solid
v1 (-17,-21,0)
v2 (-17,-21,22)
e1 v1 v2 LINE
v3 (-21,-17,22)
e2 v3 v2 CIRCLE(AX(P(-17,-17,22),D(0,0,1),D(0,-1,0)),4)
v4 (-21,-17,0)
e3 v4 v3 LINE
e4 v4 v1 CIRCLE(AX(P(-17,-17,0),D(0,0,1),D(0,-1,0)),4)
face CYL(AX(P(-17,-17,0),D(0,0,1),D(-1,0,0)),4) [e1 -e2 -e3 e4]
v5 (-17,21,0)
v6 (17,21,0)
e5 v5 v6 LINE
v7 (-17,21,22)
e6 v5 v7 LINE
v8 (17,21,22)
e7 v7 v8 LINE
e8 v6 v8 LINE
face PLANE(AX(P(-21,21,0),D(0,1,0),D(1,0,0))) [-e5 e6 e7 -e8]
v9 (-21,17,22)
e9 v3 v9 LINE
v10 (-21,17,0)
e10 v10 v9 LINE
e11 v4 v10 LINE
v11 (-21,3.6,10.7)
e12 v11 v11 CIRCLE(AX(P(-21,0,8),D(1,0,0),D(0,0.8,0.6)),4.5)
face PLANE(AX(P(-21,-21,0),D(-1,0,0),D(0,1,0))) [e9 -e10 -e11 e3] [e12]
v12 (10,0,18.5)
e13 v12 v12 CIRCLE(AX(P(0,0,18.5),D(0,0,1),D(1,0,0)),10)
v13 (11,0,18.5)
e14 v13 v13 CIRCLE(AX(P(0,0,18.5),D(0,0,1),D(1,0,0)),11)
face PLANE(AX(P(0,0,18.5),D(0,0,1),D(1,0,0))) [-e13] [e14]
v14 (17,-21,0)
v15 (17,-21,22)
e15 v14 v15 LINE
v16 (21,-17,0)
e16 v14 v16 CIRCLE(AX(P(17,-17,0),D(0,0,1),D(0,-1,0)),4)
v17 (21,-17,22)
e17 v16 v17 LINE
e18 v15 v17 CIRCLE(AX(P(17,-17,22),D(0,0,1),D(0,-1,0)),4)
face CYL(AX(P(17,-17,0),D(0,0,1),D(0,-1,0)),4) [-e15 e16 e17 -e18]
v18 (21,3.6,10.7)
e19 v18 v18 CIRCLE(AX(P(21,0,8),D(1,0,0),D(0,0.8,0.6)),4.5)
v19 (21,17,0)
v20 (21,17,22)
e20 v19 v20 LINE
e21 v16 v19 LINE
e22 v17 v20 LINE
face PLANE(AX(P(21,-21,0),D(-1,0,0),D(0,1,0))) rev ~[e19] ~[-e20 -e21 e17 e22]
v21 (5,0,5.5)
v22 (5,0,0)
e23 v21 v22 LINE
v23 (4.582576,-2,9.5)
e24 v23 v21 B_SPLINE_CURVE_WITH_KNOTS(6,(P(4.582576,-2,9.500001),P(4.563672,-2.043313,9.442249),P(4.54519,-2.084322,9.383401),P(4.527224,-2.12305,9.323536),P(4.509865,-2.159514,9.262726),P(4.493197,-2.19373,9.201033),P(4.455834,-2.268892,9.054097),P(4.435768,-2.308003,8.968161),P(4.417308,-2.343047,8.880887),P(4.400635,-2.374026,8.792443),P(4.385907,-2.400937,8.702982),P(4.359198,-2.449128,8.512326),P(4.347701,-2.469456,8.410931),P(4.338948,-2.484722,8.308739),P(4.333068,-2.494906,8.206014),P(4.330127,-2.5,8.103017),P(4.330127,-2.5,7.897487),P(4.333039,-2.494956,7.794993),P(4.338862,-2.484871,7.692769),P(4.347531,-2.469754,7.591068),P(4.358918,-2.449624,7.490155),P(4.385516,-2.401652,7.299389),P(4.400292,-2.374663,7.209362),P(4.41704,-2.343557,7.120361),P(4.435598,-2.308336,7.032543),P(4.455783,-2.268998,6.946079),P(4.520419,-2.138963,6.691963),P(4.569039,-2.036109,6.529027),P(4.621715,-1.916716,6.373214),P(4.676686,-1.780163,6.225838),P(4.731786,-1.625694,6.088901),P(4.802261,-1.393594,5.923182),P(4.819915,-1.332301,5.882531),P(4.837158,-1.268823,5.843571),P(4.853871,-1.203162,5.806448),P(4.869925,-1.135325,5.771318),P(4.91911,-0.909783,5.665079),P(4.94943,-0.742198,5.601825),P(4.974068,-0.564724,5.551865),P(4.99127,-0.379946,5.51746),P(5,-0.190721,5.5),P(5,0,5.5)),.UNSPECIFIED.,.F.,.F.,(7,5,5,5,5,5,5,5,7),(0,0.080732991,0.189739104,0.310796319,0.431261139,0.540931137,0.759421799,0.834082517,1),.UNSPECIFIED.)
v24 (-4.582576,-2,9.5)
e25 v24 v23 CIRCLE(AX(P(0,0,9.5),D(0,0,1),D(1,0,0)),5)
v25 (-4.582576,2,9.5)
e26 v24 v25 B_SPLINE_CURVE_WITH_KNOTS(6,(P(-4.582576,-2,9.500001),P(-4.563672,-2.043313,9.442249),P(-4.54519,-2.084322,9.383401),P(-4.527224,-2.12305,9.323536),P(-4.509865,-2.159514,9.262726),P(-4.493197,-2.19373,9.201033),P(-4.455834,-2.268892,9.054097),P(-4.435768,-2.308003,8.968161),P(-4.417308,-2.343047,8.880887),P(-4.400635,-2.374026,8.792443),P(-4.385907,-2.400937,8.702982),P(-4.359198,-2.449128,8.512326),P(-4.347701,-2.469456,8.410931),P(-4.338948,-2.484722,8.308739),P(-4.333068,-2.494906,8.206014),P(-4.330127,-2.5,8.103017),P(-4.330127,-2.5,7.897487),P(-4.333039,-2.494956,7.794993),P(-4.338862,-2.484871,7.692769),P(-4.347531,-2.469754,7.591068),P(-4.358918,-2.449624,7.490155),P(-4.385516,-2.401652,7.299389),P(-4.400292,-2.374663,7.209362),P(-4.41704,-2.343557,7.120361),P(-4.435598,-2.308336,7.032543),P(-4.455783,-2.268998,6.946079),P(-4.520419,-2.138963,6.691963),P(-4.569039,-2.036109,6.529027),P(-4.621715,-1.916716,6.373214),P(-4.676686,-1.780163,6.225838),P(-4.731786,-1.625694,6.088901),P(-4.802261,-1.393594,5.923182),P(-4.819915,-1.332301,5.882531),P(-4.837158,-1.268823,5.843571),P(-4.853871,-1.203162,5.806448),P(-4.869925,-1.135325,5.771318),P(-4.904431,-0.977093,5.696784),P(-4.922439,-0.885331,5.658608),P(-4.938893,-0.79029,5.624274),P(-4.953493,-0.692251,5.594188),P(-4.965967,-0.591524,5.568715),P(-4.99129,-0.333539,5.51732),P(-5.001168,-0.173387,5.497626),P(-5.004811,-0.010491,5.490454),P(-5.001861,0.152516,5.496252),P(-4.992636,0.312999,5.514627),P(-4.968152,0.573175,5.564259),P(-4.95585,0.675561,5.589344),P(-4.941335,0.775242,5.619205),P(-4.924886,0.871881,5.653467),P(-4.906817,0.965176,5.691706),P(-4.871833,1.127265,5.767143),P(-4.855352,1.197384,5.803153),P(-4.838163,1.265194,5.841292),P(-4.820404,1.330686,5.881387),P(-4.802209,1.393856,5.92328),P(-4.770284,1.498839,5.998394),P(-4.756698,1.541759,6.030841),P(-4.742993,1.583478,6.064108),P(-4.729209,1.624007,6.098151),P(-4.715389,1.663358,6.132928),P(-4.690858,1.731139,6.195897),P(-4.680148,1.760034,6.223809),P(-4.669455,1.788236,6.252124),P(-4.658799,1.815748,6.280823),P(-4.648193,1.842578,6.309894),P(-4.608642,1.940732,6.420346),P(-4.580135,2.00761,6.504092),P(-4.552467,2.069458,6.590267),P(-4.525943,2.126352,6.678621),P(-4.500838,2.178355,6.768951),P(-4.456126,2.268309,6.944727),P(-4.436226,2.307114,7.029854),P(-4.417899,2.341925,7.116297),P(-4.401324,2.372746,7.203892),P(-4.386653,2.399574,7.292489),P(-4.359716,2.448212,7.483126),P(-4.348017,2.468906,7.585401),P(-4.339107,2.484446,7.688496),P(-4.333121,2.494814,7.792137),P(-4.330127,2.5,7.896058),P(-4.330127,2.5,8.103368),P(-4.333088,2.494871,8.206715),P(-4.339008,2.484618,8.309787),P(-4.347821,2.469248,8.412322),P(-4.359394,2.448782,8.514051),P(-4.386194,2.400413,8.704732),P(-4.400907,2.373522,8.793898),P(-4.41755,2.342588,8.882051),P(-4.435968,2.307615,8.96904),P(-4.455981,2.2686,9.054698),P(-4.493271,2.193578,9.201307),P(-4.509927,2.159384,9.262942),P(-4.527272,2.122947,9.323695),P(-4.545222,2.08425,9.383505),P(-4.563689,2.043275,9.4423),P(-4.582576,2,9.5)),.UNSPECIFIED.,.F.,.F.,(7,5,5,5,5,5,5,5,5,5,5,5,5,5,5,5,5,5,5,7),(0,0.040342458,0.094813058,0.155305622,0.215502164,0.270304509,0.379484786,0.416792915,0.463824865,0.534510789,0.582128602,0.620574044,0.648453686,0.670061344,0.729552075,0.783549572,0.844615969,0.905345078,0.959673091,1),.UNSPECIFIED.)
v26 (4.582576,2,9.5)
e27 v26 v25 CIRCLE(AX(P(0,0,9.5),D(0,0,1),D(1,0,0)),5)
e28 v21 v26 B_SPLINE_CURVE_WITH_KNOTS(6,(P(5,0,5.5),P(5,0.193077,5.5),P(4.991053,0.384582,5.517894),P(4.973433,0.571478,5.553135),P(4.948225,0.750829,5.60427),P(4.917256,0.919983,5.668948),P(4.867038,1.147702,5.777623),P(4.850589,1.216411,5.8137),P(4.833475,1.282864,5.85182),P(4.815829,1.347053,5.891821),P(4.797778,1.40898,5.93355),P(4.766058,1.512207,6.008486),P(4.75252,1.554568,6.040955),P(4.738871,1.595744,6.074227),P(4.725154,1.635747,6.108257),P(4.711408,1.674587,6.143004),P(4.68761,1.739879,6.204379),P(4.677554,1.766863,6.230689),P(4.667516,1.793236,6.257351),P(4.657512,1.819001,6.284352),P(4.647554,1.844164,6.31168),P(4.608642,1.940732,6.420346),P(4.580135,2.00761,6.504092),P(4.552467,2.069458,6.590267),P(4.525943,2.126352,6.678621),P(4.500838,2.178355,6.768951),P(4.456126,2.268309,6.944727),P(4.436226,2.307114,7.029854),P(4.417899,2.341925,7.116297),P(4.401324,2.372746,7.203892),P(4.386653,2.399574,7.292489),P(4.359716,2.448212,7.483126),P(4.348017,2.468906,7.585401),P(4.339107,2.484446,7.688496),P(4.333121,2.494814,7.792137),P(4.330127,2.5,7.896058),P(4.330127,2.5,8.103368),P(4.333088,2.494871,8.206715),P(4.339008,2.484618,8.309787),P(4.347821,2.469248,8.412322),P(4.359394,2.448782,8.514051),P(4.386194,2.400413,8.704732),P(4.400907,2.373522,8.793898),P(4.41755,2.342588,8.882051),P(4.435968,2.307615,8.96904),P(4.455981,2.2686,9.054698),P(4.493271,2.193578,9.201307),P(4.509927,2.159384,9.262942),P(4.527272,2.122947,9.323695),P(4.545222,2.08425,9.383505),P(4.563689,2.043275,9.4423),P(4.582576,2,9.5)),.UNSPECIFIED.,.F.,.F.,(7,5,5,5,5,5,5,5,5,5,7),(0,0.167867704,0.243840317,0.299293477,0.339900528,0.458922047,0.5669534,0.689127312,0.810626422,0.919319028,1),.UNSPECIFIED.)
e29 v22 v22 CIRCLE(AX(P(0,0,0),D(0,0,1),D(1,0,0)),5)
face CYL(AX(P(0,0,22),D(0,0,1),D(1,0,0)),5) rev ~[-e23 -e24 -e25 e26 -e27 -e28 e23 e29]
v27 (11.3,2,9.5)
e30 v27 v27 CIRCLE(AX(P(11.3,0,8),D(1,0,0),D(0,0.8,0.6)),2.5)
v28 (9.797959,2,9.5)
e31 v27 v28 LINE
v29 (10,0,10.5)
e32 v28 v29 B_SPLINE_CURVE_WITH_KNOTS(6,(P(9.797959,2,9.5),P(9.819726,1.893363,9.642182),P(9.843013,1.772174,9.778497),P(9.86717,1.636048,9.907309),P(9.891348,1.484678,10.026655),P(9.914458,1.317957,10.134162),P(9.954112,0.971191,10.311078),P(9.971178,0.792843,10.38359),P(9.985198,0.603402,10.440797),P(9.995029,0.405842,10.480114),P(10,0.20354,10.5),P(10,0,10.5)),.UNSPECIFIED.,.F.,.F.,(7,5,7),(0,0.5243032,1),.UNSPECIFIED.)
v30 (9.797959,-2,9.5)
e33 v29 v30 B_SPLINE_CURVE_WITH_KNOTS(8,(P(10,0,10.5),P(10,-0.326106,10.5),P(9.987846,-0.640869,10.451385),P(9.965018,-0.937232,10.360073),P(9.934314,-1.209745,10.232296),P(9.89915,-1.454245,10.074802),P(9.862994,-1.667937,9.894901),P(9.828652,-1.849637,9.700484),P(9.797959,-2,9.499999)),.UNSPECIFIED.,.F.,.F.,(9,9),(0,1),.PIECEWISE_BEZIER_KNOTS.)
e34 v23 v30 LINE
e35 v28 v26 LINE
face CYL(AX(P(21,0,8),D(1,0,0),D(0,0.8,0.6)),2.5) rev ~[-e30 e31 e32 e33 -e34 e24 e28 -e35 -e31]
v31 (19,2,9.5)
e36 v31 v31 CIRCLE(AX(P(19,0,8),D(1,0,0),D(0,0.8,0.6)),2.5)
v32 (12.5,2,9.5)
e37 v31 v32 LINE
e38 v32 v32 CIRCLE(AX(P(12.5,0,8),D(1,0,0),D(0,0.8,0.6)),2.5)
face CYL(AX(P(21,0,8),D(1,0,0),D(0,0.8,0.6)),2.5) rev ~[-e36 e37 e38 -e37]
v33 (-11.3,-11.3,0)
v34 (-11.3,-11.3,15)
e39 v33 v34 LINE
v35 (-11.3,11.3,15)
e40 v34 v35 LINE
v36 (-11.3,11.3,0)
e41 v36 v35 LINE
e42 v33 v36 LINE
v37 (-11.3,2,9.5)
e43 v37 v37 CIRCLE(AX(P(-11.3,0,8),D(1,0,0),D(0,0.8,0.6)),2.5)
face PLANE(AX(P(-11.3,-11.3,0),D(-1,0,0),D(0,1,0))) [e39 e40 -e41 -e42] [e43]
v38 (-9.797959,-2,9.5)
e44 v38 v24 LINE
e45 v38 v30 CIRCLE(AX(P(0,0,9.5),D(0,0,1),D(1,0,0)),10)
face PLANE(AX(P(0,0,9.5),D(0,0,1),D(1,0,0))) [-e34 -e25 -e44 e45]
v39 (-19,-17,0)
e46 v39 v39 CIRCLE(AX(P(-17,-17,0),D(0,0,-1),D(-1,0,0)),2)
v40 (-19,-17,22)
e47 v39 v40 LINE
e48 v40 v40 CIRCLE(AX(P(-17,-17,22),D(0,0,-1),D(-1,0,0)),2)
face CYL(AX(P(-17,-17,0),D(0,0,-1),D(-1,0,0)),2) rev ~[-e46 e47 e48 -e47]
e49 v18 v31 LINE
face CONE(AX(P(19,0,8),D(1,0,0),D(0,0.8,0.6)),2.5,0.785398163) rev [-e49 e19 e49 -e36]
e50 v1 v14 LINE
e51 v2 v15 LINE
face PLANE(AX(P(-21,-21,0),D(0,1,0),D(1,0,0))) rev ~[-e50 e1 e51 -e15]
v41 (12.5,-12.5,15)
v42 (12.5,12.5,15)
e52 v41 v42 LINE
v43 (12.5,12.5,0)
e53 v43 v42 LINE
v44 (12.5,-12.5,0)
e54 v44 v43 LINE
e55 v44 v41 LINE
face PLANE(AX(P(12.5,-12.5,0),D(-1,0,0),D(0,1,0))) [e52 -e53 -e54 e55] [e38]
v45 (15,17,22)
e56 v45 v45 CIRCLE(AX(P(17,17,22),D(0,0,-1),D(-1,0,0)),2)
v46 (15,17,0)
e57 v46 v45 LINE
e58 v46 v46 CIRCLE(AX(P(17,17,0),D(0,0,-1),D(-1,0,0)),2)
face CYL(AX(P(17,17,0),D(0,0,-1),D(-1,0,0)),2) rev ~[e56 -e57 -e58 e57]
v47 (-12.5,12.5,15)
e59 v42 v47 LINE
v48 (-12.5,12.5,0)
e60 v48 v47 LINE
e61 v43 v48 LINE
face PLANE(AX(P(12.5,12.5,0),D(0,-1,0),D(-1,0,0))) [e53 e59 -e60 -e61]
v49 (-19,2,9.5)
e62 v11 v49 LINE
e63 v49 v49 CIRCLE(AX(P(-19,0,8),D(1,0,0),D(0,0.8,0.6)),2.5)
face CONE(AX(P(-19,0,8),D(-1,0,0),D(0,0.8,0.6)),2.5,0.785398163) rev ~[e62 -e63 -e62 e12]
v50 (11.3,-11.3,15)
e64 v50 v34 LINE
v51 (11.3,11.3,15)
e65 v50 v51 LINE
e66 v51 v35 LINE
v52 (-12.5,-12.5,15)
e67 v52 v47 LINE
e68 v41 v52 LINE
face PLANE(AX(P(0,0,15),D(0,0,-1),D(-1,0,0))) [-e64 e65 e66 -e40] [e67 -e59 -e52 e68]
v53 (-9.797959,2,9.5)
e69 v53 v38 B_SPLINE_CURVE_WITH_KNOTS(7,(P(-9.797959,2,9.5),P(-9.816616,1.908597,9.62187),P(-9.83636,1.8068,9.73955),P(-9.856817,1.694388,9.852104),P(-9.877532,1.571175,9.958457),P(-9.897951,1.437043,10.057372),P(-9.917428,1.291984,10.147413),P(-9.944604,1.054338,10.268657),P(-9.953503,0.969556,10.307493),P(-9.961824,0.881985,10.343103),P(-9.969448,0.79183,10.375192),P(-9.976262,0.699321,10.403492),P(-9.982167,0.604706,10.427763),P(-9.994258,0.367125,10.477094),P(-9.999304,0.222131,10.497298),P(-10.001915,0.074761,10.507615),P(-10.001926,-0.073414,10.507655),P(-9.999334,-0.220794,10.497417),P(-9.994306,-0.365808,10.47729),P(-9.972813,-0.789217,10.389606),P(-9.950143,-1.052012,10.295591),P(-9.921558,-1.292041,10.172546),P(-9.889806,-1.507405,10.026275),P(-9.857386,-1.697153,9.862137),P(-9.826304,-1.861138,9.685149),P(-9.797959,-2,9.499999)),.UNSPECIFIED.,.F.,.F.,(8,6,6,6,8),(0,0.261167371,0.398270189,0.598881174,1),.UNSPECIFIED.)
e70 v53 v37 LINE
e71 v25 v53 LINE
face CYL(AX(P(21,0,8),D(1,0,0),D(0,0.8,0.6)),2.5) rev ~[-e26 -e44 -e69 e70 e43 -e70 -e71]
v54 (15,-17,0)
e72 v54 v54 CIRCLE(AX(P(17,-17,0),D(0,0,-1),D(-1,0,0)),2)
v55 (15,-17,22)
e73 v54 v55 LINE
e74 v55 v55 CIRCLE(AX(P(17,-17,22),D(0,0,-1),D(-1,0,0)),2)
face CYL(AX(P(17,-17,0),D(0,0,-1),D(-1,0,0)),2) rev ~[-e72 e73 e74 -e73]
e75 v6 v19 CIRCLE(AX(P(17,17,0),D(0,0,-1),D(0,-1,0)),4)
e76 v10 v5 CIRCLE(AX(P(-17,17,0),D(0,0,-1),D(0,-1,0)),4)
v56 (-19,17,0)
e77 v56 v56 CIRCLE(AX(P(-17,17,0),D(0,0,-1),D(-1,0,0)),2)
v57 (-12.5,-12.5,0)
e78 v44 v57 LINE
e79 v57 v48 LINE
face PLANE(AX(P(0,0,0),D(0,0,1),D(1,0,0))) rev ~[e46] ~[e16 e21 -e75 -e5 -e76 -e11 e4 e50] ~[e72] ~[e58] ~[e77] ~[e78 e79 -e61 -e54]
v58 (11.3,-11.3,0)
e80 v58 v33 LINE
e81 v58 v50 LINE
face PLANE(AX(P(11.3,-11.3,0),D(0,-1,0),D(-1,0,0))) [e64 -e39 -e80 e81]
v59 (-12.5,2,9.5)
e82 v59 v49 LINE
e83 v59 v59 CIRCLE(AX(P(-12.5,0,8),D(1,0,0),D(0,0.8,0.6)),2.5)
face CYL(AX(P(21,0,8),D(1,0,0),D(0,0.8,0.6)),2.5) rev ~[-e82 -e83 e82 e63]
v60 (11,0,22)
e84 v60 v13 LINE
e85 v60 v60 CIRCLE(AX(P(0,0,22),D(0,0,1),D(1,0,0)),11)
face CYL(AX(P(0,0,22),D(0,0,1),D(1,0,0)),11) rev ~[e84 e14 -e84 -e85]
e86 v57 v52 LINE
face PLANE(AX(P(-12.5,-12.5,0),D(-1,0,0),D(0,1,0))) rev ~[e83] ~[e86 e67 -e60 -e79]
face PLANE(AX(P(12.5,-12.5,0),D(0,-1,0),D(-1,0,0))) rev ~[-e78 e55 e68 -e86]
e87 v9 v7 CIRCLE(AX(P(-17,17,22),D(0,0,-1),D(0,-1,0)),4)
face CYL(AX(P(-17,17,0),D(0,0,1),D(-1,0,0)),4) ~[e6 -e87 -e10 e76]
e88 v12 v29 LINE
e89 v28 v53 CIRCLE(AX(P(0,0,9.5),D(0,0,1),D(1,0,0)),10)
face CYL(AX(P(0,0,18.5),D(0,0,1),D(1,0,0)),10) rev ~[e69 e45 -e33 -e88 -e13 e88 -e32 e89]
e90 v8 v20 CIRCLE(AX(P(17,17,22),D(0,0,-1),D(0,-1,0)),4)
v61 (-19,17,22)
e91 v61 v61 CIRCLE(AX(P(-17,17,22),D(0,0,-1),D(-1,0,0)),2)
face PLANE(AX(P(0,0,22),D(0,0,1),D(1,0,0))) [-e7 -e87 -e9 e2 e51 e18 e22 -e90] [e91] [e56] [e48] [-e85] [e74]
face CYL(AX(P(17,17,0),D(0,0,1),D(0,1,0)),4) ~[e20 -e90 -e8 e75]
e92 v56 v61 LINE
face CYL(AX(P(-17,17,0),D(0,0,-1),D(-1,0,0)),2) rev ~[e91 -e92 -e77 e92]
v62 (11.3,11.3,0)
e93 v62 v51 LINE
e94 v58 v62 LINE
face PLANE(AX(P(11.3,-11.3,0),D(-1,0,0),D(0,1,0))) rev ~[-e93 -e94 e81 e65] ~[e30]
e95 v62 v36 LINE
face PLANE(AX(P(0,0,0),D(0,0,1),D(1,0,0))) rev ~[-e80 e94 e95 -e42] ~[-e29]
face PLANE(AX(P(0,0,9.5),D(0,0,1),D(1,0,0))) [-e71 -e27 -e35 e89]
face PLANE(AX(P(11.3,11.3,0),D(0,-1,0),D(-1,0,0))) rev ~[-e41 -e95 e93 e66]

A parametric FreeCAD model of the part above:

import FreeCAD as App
import Part
import Sketcher
from FreeCAD import Vector
Q = App.Units.Quantity


def edges_at(feature, points):
    """Names of the edges that pass closest to the given points."""
    edges = feature.Shape.Edges
    near = lambda p: min(range(len(edges)), key=lambda i: edges[i].distToShape(Part.Vertex(*p))[0])
    return sorted({f"Edge{near(p) + 1}" for p in points})


def add_polygon(sketch, points):
    """Adds a closed chain of lines whose ends are joined by coincident constraints."""
    first, n = sketch.GeometryCount, len(points)
    for a, b in zip(points, points[1:] + points[:1]):
        sketch.addGeometry(Part.LineSegment(App.Vector(*a, 0), App.Vector(*b, 0)), False)
    for i in range(n):
        sketch.addConstraint(Sketcher.Constraint("Coincident", first + i, 2, first + (i + 1) % n, 1))

doc = App.newDocument("Part")
body = doc.addObject("PartDesign::Body", "Body")

sketch1 = doc.addObject("Sketcher::SketchObject", "Sketch")
body.addObject(sketch1)
sketch1.AttachmentSupport = (doc.XY_Plane, [""])
sketch1.MapMode = "FlatFace"
add_polygon(sketch1, [(-21, 21), (-21, -21), (21, -21), (21, 21)])
sketch1.addConstraint([
    Sketcher.Constraint("Vertical", 0),
    Sketcher.Constraint("Horizontal", 1),
    Sketcher.Constraint("Vertical", 2),
    Sketcher.Constraint("Horizontal", 3),
    Sketcher.Constraint("Symmetric", 0, 2, 2, 2, -1, 1),
    Sketcher.Constraint("Equal", 3, 0),
    Sketcher.Constraint("DistanceX", 1, 1, 1, 2, Q("42 mm")),
])
pad1 = doc.addObject("PartDesign::Pad", "Pad")
body.addObject(pad1)
pad1.Profile = sketch1
pad1.Length = 22

sketch2 = doc.addObject("Sketcher::SketchObject", "Sketch001")
body.addObject(sketch2)
sketch2.AttachmentSupport = (doc.XY_Plane, [""])
sketch2.MapMode = "FlatFace"
add_polygon(sketch2, [(12.5, 12.5), (12.5, -12.5), (-12.5, -12.5), (-12.5, 12.5)])
add_polygon(sketch2, [(-11.3, -11.3), (11.3, -11.3), (11.3, 11.3), (-11.3, 11.3)])
sketch2.addConstraint([
    Sketcher.Constraint("Vertical", 0),
    Sketcher.Constraint("Horizontal", 1),
    Sketcher.Constraint("Vertical", 2),
    Sketcher.Constraint("Horizontal", 3),
    Sketcher.Constraint("Horizontal", 4),
    Sketcher.Constraint("Vertical", 5),
    Sketcher.Constraint("Horizontal", 6),
    Sketcher.Constraint("Vertical", 7),
    Sketcher.Constraint("Symmetric", 0, 2, 2, 2, -1, 1),
    Sketcher.Constraint("Symmetric", 4, 2, 6, 2, -1, 1),
    Sketcher.Constraint("Equal", 3, 0),
    Sketcher.Constraint("Equal", 6, 5),
    Sketcher.Constraint("DistanceX", 1, 2, 1, 1, Q("25 mm")),
    Sketcher.Constraint("DistanceX", 4, 1, 4, 2, Q("22.6 mm")),
])
pocket1 = doc.addObject("PartDesign::Pocket", "Pocket")
body.addObject(pocket1)
pocket1.Profile = sketch2
pocket1.Length = 15
pocket1.Reversed = True

sketch3 = doc.addObject("Sketcher::SketchObject", "Sketch002")
body.addObject(sketch3)
sketch3.AttachmentSupport = (doc.XY_Plane, [""])
sketch3.MapMode = "FlatFace"
sketch3.AttachmentOffset = App.Placement(Vector(0, 0, 22), App.Rotation())
sketch3.addGeometry(Part.Circle(Vector(0, 0, 0), Vector(0, 0, 1), 5), False)
sketch3.addConstraint([
    Sketcher.Constraint("Coincident", 0, 3, -1, 1),
    Sketcher.Constraint("Diameter", 0, Q("10 mm")),
])
pocket2 = doc.addObject("PartDesign::Pocket", "Pocket001")
body.addObject(pocket2)
pocket2.Profile = sketch3
pocket2.Type = "ThroughAll"

sketch4 = doc.addObject("Sketcher::SketchObject", "Sketch003")
body.addObject(sketch4)
sketch4.AttachmentSupport = (doc.XY_Plane, [""])
sketch4.MapMode = "FlatFace"
sketch4.AttachmentOffset = App.Placement(Vector(0, 0, 22), App.Rotation())
sketch4.addGeometry(Part.Circle(Vector(0, 0, 0), Vector(0, 0, 1), 11), False)
sketch4.addConstraint([
    Sketcher.Constraint("Coincident", 0, 3, -1, 1),
    Sketcher.Constraint("Diameter", 0, Q("22 mm")),
])
pocket3 = doc.addObject("PartDesign::Pocket", "Pocket002")
body.addObject(pocket3)
pocket3.Profile = sketch4
pocket3.Length = 3.5

sketch5 = doc.addObject("Sketcher::SketchObject", "Sketch004")
body.addObject(sketch5)
sketch5.AttachmentSupport = (doc.XY_Plane, [""])
sketch5.MapMode = "FlatFace"
sketch5.AttachmentOffset = App.Placement(Vector(0, 0, 18.5), App.Rotation())
sketch5.addGeometry(Part.Circle(Vector(0, 0, 0), Vector(0, 0, 1), 10), False)
sketch5.addConstraint([
    Sketcher.Constraint("Coincident", 0, 3, -1, 1),
    Sketcher.Constraint("Diameter", 0, Q("20 mm")),
])
pocket4 = doc.addObject("PartDesign::Pocket", "Pocket003")
body.addObject(pocket4)
pocket4.Profile = sketch5
pocket4.Length = 9

sketch6 = doc.addObject("Sketcher::SketchObject", "Sketch005")
body.addObject(sketch6)
sketch6.AttachmentSupport = (doc.XY_Plane, [""])
sketch6.MapMode = "FlatFace"
sketch6.addGeometry([
    Part.Circle(Vector(-17, 17, 0), Vector(0, 0, 1), 2),
    Part.Circle(Vector(17, 17, 0), Vector(0, 0, 1), 2),
    Part.Circle(Vector(17, -17, 0), Vector(0, 0, 1), 2),
    Part.Circle(Vector(-17, -17, 0), Vector(0, 0, 1), 2),
], False)
sketch6.addConstraint([
    Sketcher.Constraint("Equal", 0, 1),
    Sketcher.Constraint("Equal", 1, 2),
    Sketcher.Constraint("Equal", 2, 3),
    Sketcher.Constraint("Symmetric", 0, 3, 2, 3, -1, 1),
    Sketcher.Constraint("Symmetric", 1, 3, 3, 3, -1, 1),
    Sketcher.Constraint("Symmetric", 0, 3, 1, 3, -2),
    Sketcher.Constraint("Diameter", 0, Q("4 mm")),
    Sketcher.Constraint("DistanceX", 0, 3, -1, 1, Q("17 mm")),
    Sketcher.Constraint("DistanceY", -1, 1, 0, 3, Q("17 mm")),
])
pocket5 = doc.addObject("PartDesign::Pocket", "Pocket004")
body.addObject(pocket5)
pocket5.Profile = sketch6
pocket5.Type = "ThroughAll"
pocket5.Reversed = True
doc.recompute()

fillet = doc.addObject("PartDesign::Fillet", "Fillet")
body.addObject(fillet)
fillet.Base = (pocket5, edges_at(pocket5, [
    (21, -21, 11),
    (-21, -21, 11),
    (-21, 21, 11),
    (21, 21, 11),
]))
fillet.Radius = 4

sketch7 = doc.addObject("Sketcher::SketchObject", "Sketch006")
body.addObject(sketch7)
sketch7.AttachmentSupport = (doc.YZ_Plane, [""])
sketch7.MapMode = "FlatFace"
sketch7.AttachmentOffset = App.Placement(Vector(0, 0, 21), App.Rotation())
sketch7.addGeometry(Part.Circle(Vector(0, 8, 0), Vector(0, 0, 1), 2.5), False)
sketch7.addConstraint([
    Sketcher.Constraint("PointOnObject", 0, 3, -2),
    Sketcher.Constraint("Diameter", 0, Q("5 mm")),
    Sketcher.Constraint("DistanceY", -1, 1, 0, 3, Q("8 mm")),
])
pocket6 = doc.addObject("PartDesign::Pocket", "Pocket005")
body.addObject(pocket6)
pocket6.Profile = sketch7
pocket6.Type = "ThroughAll"
doc.recompute()

chamfer = doc.addObject("PartDesign::Chamfer", "Chamfer")
body.addObject(chamfer)
chamfer.Base = (pocket6, edges_at(pocket6, [(-21, -2, 6.5), (21, -2, 6.5)]))
chamfer.Size = 2

doc.recompute()
